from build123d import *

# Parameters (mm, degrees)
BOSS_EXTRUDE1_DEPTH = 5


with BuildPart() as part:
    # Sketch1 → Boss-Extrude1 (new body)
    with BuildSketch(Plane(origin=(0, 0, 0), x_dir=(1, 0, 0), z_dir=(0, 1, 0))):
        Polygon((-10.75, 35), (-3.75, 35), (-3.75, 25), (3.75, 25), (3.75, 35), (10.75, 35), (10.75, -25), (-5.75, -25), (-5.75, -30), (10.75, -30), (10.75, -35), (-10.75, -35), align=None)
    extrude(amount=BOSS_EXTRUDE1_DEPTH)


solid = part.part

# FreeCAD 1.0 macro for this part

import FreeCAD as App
import Part
import Sketcher
Q = App.Units.Quantity

doc = App.newDocument("Part")
body = doc.addObject("PartDesign::Body", "Body")

sketch1 = body.newObject("Sketcher::SketchObject", "Sketch")
sketch1.AttachmentSupport = (doc.getObject("XZ_Plane"), [""])
sketch1.MapMode = "FlatFace"
sketch1.addGeometry(Part.LineSegment(App.Vector(-4, -35, 0), App.Vector(-11, -35, 0)), False)
sketch1.addGeometry(Part.LineSegment(App.Vector(-11, -35, 0), App.Vector(-11, 35, 0)), False)
sketch1.addGeometry(Part.LineSegment(App.Vector(-11, 35, 0), App.Vector(11, 35, 0)), False)
sketch1.addGeometry(Part.LineSegment(App.Vector(11, 35, 0), App.Vector(11, 30, 0)), False)
sketch1.addGeometry(Part.LineSegment(App.Vector(11, 30, 0), App.Vector(-6, 30, 0)), False)
sketch1.addGeometry(Part.LineSegment(App.Vector(-6, 30, 0), App.Vector(-6, 25, 0)), False)
sketch1.addGeometry(Part.LineSegment(App.Vector(-6, 25, 0), App.Vector(11, 25, 0)), False)
sketch1.addGeometry(Part.LineSegment(App.Vector(11, 25, 0), App.Vector(11, -35, 0)), False)
sketch1.addGeometry(Part.LineSegment(App.Vector(11, -35, 0), App.Vector(4, -35, 0)), False)
sketch1.addGeometry(Part.LineSegment(App.Vector(4, -35, 0), App.Vector(4, -25, 0)), False)
sketch1.addGeometry(Part.LineSegment(App.Vector(4, -25, 0), App.Vector(-4, -25, 0)), False)
sketch1.addGeometry(Part.LineSegment(App.Vector(-4, -25, 0), App.Vector(-4, -35, 0)), False)
sketch1.addConstraint(Sketcher.Constraint("Coincident", 0, 2, 1, 1))
sketch1.addConstraint(Sketcher.Constraint("Coincident", 1, 2, 2, 1))
sketch1.addConstraint(Sketcher.Constraint("Coincident", 2, 2, 3, 1))
sketch1.addConstraint(Sketcher.Constraint("Coincident", 3, 2, 4, 1))
sketch1.addConstraint(Sketcher.Constraint("Coincident", 4, 2, 5, 1))
sketch1.addConstraint(Sketcher.Constraint("Coincident", 5, 2, 6, 1))
sketch1.addConstraint(Sketcher.Constraint("Coincident", 6, 2, 7, 1))
sketch1.addConstraint(Sketcher.Constraint("Coincident", 7, 2, 8, 1))
sketch1.addConstraint(Sketcher.Constraint("Coincident", 8, 2, 9, 1))
sketch1.addConstraint(Sketcher.Constraint("Coincident", 9, 2, 10, 1))
sketch1.addConstraint(Sketcher.Constraint("Coincident", 10, 2, 11, 1))
sketch1.addConstraint(Sketcher.Constraint("Coincident", 11, 2, 0, 1))
sketch1.addConstraint(Sketcher.Constraint("Horizontal", 0))
sketch1.addConstraint(Sketcher.Constraint("Vertical", 1))
sketch1.addConstraint(Sketcher.Constraint("Horizontal", 2))
sketch1.addConstraint(Sketcher.Constraint("Vertical", 3))
sketch1.addConstraint(Sketcher.Constraint("Horizontal", 4))
sketch1.addConstraint(Sketcher.Constraint("Vertical", 5))
sketch1.addConstraint(Sketcher.Constraint("Horizontal", 6))
sketch1.addConstraint(Sketcher.Constraint("Vertical", 7))
sketch1.addConstraint(Sketcher.Constraint("Horizontal", 8))
sketch1.addConstraint(Sketcher.Constraint("Vertical", 9))
sketch1.addConstraint(Sketcher.Constraint("Horizontal", 10))
sketch1.addConstraint(Sketcher.Constraint("Vertical", 11))
sketch1.addConstraint(Sketcher.Constraint("Symmetric", 0, 2, 2, 2, -1, 1))
sketch1.addConstraint(Sketcher.Constraint("Symmetric", 1, 2, 7, 2, -1, 1))
sketch1.addConstraint(Sketcher.Constraint("Equal", 0, 8))
sketch1.addConstraint(Sketcher.Constraint("Equal", 3, 5))
sketch1.addConstraint(Sketcher.Constraint("DistanceX", 0, 2, 0, 1, Q("7 mm")))
sketch1.addConstraint(Sketcher.Constraint("DistanceY", 1, 1, 1, 2, Q("70 mm")))
sketch1.addConstraint(Sketcher.Constraint("DistanceY", 3, 2, 3, 1, Q("5 mm")))
sketch1.addConstraint(Sketcher.Constraint("DistanceY", 9, 1, 9, 2, Q("10 mm")))
sketch1.addConstraint(Sketcher.Constraint("DistanceX", 2, 1, 2, 2, Q("21.5 mm")))
sketch1.addConstraint(Sketcher.Constraint("DistanceX", 4, 2, 4, 1, Q("16.5 mm")))
pad1 = body.newObject("PartDesign::Pad", "Pad")
pad1.Profile = sketch1
pad1.Length = 5
pad1.Reversed = True

doc.recompute()
